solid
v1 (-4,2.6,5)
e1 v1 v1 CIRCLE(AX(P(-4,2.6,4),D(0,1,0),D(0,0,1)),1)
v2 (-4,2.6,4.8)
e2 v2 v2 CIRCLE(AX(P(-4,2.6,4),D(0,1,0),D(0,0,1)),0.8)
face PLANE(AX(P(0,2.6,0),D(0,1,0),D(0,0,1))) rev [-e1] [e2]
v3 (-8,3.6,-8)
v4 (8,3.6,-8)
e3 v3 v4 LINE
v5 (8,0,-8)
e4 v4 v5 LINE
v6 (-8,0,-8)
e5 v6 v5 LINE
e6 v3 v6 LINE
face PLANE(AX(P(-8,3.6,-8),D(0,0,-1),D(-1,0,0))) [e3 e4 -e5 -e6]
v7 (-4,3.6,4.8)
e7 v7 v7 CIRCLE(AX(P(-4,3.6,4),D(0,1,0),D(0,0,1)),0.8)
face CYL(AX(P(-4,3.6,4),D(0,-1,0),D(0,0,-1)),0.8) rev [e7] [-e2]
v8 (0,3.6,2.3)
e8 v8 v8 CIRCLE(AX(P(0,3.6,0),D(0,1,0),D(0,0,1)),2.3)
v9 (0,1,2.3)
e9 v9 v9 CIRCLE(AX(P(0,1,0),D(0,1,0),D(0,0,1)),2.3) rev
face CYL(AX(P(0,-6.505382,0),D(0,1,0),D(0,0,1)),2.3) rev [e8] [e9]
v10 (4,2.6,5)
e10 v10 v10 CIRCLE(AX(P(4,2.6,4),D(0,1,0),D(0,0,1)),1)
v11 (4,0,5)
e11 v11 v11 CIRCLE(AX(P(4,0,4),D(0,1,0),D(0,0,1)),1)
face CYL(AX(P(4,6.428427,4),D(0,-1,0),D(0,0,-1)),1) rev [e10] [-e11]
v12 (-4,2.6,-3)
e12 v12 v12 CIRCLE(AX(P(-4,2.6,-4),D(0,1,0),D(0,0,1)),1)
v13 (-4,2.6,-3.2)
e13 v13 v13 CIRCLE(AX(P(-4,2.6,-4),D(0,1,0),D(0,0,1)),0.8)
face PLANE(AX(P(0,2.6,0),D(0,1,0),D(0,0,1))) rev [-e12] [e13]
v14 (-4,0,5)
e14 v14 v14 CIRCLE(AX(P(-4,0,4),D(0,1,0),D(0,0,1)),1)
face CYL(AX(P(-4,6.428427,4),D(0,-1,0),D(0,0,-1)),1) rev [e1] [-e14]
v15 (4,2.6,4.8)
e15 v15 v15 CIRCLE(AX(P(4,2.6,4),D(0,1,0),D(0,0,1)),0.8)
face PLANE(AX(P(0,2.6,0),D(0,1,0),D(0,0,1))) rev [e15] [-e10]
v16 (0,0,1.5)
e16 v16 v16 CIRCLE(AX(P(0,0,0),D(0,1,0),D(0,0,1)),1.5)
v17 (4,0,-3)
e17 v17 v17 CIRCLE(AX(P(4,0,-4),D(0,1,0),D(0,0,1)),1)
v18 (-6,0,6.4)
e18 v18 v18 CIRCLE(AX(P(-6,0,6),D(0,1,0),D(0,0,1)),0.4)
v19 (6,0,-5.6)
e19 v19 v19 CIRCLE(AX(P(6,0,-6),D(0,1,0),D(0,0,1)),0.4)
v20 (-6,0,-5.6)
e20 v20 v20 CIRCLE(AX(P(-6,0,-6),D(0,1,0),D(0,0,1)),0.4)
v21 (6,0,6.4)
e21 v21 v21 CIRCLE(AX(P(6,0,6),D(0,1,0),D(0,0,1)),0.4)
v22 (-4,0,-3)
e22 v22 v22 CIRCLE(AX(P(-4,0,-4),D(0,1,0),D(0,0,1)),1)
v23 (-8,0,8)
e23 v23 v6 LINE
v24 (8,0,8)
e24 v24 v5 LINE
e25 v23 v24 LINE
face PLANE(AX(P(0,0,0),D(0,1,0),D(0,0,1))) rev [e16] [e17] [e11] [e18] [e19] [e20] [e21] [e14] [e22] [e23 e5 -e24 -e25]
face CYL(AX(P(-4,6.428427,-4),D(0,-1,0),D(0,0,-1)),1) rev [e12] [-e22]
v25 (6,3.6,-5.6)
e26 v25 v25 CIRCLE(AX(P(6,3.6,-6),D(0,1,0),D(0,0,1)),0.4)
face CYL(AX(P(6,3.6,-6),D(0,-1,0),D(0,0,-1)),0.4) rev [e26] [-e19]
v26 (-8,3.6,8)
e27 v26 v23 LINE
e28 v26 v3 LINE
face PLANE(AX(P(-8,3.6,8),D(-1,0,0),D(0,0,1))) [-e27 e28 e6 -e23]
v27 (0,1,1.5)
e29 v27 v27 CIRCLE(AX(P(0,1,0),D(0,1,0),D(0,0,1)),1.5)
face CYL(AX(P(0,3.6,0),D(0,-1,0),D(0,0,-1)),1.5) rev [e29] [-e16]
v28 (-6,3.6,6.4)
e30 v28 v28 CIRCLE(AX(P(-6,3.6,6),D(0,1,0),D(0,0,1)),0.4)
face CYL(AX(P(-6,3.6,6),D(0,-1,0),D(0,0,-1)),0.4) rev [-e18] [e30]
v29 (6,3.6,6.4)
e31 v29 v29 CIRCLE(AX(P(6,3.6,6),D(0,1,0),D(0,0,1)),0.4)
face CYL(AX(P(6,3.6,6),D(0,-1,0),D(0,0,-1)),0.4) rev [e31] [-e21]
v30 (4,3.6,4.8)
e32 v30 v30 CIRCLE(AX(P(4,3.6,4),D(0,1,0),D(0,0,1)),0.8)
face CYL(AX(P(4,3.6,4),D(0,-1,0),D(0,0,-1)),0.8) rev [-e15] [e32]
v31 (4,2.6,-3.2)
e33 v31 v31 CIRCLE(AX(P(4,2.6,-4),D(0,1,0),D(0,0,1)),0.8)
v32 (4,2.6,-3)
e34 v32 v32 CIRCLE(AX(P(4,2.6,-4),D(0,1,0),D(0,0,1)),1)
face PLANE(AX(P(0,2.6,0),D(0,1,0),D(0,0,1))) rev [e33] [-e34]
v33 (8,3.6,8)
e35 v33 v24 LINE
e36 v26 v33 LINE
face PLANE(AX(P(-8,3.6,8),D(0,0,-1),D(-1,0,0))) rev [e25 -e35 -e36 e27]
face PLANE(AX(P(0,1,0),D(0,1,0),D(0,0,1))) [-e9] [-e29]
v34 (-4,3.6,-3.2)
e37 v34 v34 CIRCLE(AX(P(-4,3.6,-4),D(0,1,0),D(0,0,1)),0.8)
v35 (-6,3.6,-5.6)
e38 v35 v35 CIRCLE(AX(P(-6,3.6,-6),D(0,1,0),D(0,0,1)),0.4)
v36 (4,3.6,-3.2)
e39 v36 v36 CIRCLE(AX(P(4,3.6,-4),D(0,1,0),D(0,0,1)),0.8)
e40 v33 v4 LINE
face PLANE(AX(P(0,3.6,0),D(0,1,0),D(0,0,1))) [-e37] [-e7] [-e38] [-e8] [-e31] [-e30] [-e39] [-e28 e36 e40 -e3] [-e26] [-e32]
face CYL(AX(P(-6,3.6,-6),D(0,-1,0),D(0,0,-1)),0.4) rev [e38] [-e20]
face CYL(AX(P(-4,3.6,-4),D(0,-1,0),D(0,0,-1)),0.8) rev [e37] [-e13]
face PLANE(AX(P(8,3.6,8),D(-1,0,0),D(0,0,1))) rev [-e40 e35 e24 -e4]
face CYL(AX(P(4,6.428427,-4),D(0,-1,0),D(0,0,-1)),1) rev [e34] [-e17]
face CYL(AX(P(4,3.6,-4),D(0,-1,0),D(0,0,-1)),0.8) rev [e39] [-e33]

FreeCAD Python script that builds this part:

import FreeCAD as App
import Part
import Sketcher
from FreeCAD import Vector
Q = App.Units.Quantity

doc = App.newDocument("Part")
params = doc.addObject("Spreadsheet::Sheet", "Params")
for row, (alias, value) in enumerate([
    ("sketch1_diameter", "3 mm"),
    ("sketch1_diameter2", "0.8 mm"),
    ("sketch1_diameter3", "1.6 mm"),
    ("sketch1_width", "16 mm"),
    ("pad1_length", "3.6 mm"),
    ("sketch2_diameter", "4.6 mm"),
    ("pocket1_length", "2.6 mm"),
    ("sketch3_diameter", "2 mm"),
    ("pocket2_length", "2.6 mm"),
], start=1):
    params.set(f"A{row}", alias)
    params.set(f"B{row}", "=" + value)
    params.setAlias(f"B{row}", alias)

body = doc.addObject("PartDesign::Body", "Body")

# Sketch on XZ plane
sketch1 = doc.addObject("Sketcher::SketchObject", "Sketch")
body.addObject(sketch1)
sketch1.AttachmentSupport = (doc.XZ_Plane, [""])
sketch1.MapMode = "FlatFace"
sketch1.addGeometry([
    Part.LineSegment(Vector(-8, -8, 0), Vector(-8, 8, 0)),  # 0
    Part.LineSegment(Vector(-8, 8, 0), Vector(8, 8, 0)),  # 1
    Part.LineSegment(Vector(8, 8, 0), Vector(8, -8, 0)),  # 2
    Part.LineSegment(Vector(8, -8, 0), Vector(-8, -8, 0)),  # 3
    Part.Circle(Vector(-6, 6, 0), Vector(0, 0, 1), 0.4),  # 4
    Part.Circle(Vector(-4, 4, 0), Vector(0, 0, 1), 0.8),  # 5
    Part.Circle(Vector(6, 6, 0), Vector(0, 0, 1), 0.4),  # 6
    Part.Circle(Vector(4, 4, 0), Vector(0, 0, 1), 0.8),  # 7
    Part.Circle(Vector(-4, -4, 0), Vector(0, 0, 1), 0.8),  # 8
    Part.Circle(Vector(-6, -6, 0), Vector(0, 0, 1), 0.4),  # 9
    Part.Circle(Vector(0, 0, 0), Vector(0, 0, 1), 1.5),  # 10
    Part.Circle(Vector(4, -4, 0), Vector(0, 0, 1), 0.8),  # 11
    Part.Circle(Vector(6, -6, 0), Vector(0, 0, 1), 0.4),  # 12
], False)
sketch1.addConstraint([
    Sketcher.Constraint("Coincident", 0, 2, 1, 1),
    Sketcher.Constraint("Coincident", 1, 2, 2, 1),
    Sketcher.Constraint("Coincident", 2, 2, 3, 1),
    Sketcher.Constraint("Coincident", 3, 2, 0, 1),
    Sketcher.Constraint("Vertical", 0),
    Sketcher.Constraint("Horizontal", 1),
    Sketcher.Constraint("Vertical", 2),
    Sketcher.Constraint("Horizontal", 3),
    Sketcher.Constraint("Coincident", 10, 3, -1, 1),
    Sketcher.Constraint("Equal", 4, 6),
    Sketcher.Constraint("Equal", 5, 7),
    Sketcher.Constraint("Equal", 7, 8),
    Sketcher.Constraint("Equal", 6, 9),
    Sketcher.Constraint("Equal", 8, 11),
    Sketcher.Constraint("Equal", 9, 12),
    Sketcher.Constraint("Symmetric", 7, 3, 8, 3, -1, 1),
    Sketcher.Constraint("Symmetric", 6, 3, 9, 3, -1, 1),
    Sketcher.Constraint("Symmetric", 5, 3, 11, 3, -1, 1),
    Sketcher.Constraint("Symmetric", 4, 3, 12, 3, -1, 1),
    Sketcher.Constraint("Symmetric", 0, 2, 2, 2, -1, 1),
    Sketcher.Constraint("Symmetric", 4, 3, 6, 3, -2),
    Sketcher.Constraint("Symmetric", 5, 3, 7, 3, -2),
    Sketcher.Constraint("Equal", 3, 0),
    Sketcher.Constraint("Diameter", 10, Q("3 mm")),
    Sketcher.Constraint("Diameter", 4, Q("0.8 mm")),
    Sketcher.Constraint("Diameter", 5, Q("1.6 mm")),
    Sketcher.Constraint("DistanceX", 1, 1, 1, 2, Q("16 mm")),
    Sketcher.Constraint("DistanceX", 4, 3, -1, 1, Q("6 mm")),
    Sketcher.Constraint("DistanceY", -1, 1, 4, 3, Q("6 mm")),
    Sketcher.Constraint("DistanceX", 5, 3, -1, 1, Q("4 mm")),
    Sketcher.Constraint("DistanceY", -1, 1, 5, 3, Q("4 mm")),
])
sketch1.setExpression("Constraints[23]", "Params.sketch1_diameter")
sketch1.setExpression("Constraints[24]", "Params.sketch1_diameter2")
sketch1.setExpression("Constraints[25]", "Params.sketch1_diameter3")
sketch1.setExpression("Constraints[26]", "Params.sketch1_width")
pad1 = doc.addObject("PartDesign::Pad", "Pad")
body.addObject(pad1)
pad1.Profile = sketch1
pad1.setExpression("Length", "Params.pad1_length")
pad1.Reversed = True

# Sketch on XZ plane
sketch2 = doc.addObject("Sketcher::SketchObject", "Sketch001")
body.addObject(sketch2)
sketch2.AttachmentSupport = (doc.XZ_Plane, [""])
sketch2.MapMode = "FlatFace"
sketch2.AttachmentOffset = App.Placement(Vector(0, 0, -3.6), App.Rotation())
sketch2.addGeometry(Part.Circle(Vector(0, 0, 0), Vector(0, 0, 1), 2.3), False)
sketch2.addConstraint([
    Sketcher.Constraint("Coincident", 0, 3, -1, 1),
    Sketcher.Constraint("Diameter", 0, Q("4.6 mm")),
])
sketch2.setExpression("Constraints[1]", "Params.sketch2_diameter")
pocket1 = doc.addObject("PartDesign::Pocket", "Pocket")
body.addObject(pocket1)
pocket1.Profile = sketch2
pocket1.setExpression("Length", "Params.pocket1_length")
pocket1.Reversed = True

# Sketch on XZ plane
sketch3 = doc.addObject("Sketcher::SketchObject", "Sketch002")
body.addObject(sketch3)
sketch3.AttachmentSupport = (doc.XZ_Plane, [""])
sketch3.MapMode = "FlatFace"
sketch3.addGeometry([
    Part.Circle(Vector(-4, -4, 0), Vector(0, 0, 1), 1),
    Part.Circle(Vector(4, -4, 0), Vector(0, 0, 1), 1),
    Part.Circle(Vector(4, 4, 0), Vector(0, 0, 1), 1),
    Part.Circle(Vector(-4, 4, 0), Vector(0, 0, 1), 1),
], False)
sketch3.addConstraint([
    Sketcher.Constraint("Equal", 0, 1),
    Sketcher.Constraint("Equal", 1, 2),
    Sketcher.Constraint("Equal", 2, 3),
    Sketcher.Constraint("Symmetric", 0, 3, 2, 3, -1, 1),
    Sketcher.Constraint("Symmetric", 1, 3, 3, 3, -1, 1),
    Sketcher.Constraint("Symmetric", 0, 3, 1, 3, -2),
    Sketcher.Constraint("Diameter", 0, Q("2 mm")),
    Sketcher.Constraint("DistanceX", 0, 3, -1, 1, Q("4 mm")),
    Sketcher.Constraint("DistanceY", 0, 3, -1, 1, Q("4 mm")),
])
sketch3.setExpression("Constraints[6]", "Params.sketch3_diameter")
pocket2 = doc.addObject("PartDesign::Pocket", "Pocket001")
body.addObject(pocket2)
pocket2.Profile = sketch3
pocket2.setExpression("Length", "Params.pocket2_length")

doc.recompute()
